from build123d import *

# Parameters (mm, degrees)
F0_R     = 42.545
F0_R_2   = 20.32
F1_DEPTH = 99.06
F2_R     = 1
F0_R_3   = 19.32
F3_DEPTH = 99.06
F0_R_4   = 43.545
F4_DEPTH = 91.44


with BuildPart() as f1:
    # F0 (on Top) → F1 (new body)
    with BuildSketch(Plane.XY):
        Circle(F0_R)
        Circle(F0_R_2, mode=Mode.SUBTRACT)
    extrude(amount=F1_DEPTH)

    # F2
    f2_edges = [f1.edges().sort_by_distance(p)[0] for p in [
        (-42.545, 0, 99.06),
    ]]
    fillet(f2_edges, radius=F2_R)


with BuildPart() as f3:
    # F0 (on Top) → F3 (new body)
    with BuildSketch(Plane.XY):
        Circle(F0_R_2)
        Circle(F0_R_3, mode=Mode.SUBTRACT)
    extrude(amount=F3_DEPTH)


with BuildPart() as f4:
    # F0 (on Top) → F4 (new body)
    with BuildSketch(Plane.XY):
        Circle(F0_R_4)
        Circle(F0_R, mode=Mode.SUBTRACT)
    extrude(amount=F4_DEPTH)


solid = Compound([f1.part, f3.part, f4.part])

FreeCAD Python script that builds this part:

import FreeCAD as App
import Part
import Sketcher
from FreeCAD import Vector
Q = App.Units.Quantity


def edges_at(feature, points):
    """Names of the edges that pass closest to the given points."""
    edges = feature.Shape.Edges
    near = lambda p: min(range(len(edges)), key=lambda i: edges[i].distToShape(Part.Vertex(*p))[0])
    return sorted({f"Edge{near(p) + 1}" for p in points})

doc = App.newDocument("Part")
body = doc.addObject("PartDesign::Body", "Body")

# Sketch on XY plane
sketch1 = body.newObject("Sketcher::SketchObject", "Sketch")
sketch1.AttachmentSupport = (doc.getObject("XY_Plane"), [""])
sketch1.MapMode = "FlatFace"
sketch1.addGeometry([
    Part.Circle(Vector(0, 0, 0), Vector(0, 0, 1), 43),
    Part.Circle(Vector(0, 0, 0), Vector(0, 0, 1), 20),
], False)
sketch1.addConstraint([
    Sketcher.Constraint("Coincident", 0, 3, -1, 1),
    Sketcher.Constraint("Coincident", 1, 3, -1, 1),
    Sketcher.Constraint("Diameter", 1, Q("1.6 in")),
    Sketcher.Constraint("Diameter", 0, Q("3.35 in")),
])
pad1 = body.newObject("PartDesign::Pad", "Pad")
pad1.Profile = sketch1
pad1.Length = Q("3.9 in")
doc.recompute()

fillet = body.newObject("PartDesign::Fillet", "Fillet")
fillet.Base = (pad1, edges_at(pad1, [(-42.545, 0, 99.06)]))
fillet.Radius = 1
body2 = doc.addObject("PartDesign::Body", "Body001")

# Sketch on XY plane
sketch2 = body2.newObject("Sketcher::SketchObject", "Sketch001")
sketch2.AttachmentSupport = (doc.getObject("XY_Plane001"), [""])
sketch2.MapMode = "FlatFace"
sketch2.addGeometry([
    Part.Circle(Vector(0, 0, 0), Vector(0, 0, 1), 20),
    Part.Circle(Vector(0, 0, 0), Vector(0, 0, 1), 19),
], False)
sketch2.addConstraint([
    Sketcher.Constraint("Coincident", 0, 3, -1, 1),
    Sketcher.Constraint("Coincident", 1, 3, -1, 1),
    Sketcher.Constraint("Diameter", 0, Q("1.6 in")),
    Sketcher.Constraint("Diameter", 1, Q("38.64 mm")),
])
pad2 = body2.newObject("PartDesign::Pad", "Pad001")
pad2.Profile = sketch2
pad2.Length = Q("3.9 in")
body3 = doc.addObject("PartDesign::Body", "Body002")

# Sketch on XY plane
sketch3 = body3.newObject("Sketcher::SketchObject", "Sketch002")
sketch3.AttachmentSupport = (doc.getObject("XY_Plane002"), [""])
sketch3.MapMode = "FlatFace"
sketch3.addGeometry([
    Part.Circle(Vector(0, 0, 0), Vector(0, 0, 1), 44),
    Part.Circle(Vector(0, 0, 0), Vector(0, 0, 1), 43),
], False)
sketch3.addConstraint([
    Sketcher.Constraint("Coincident", 0, 3, -1, 1),
    Sketcher.Constraint("Coincident", 1, 3, -1, 1),
    Sketcher.Constraint("Diameter", 1, Q("3.35 in")),
    Sketcher.Constraint("Diameter", 0, Q("87.09 mm")),
])
pad3 = body3.newObject("PartDesign::Pad", "Pad002")
pad3.Profile = sketch3
pad3.Length = Q("3.6 in")

doc.recompute()
